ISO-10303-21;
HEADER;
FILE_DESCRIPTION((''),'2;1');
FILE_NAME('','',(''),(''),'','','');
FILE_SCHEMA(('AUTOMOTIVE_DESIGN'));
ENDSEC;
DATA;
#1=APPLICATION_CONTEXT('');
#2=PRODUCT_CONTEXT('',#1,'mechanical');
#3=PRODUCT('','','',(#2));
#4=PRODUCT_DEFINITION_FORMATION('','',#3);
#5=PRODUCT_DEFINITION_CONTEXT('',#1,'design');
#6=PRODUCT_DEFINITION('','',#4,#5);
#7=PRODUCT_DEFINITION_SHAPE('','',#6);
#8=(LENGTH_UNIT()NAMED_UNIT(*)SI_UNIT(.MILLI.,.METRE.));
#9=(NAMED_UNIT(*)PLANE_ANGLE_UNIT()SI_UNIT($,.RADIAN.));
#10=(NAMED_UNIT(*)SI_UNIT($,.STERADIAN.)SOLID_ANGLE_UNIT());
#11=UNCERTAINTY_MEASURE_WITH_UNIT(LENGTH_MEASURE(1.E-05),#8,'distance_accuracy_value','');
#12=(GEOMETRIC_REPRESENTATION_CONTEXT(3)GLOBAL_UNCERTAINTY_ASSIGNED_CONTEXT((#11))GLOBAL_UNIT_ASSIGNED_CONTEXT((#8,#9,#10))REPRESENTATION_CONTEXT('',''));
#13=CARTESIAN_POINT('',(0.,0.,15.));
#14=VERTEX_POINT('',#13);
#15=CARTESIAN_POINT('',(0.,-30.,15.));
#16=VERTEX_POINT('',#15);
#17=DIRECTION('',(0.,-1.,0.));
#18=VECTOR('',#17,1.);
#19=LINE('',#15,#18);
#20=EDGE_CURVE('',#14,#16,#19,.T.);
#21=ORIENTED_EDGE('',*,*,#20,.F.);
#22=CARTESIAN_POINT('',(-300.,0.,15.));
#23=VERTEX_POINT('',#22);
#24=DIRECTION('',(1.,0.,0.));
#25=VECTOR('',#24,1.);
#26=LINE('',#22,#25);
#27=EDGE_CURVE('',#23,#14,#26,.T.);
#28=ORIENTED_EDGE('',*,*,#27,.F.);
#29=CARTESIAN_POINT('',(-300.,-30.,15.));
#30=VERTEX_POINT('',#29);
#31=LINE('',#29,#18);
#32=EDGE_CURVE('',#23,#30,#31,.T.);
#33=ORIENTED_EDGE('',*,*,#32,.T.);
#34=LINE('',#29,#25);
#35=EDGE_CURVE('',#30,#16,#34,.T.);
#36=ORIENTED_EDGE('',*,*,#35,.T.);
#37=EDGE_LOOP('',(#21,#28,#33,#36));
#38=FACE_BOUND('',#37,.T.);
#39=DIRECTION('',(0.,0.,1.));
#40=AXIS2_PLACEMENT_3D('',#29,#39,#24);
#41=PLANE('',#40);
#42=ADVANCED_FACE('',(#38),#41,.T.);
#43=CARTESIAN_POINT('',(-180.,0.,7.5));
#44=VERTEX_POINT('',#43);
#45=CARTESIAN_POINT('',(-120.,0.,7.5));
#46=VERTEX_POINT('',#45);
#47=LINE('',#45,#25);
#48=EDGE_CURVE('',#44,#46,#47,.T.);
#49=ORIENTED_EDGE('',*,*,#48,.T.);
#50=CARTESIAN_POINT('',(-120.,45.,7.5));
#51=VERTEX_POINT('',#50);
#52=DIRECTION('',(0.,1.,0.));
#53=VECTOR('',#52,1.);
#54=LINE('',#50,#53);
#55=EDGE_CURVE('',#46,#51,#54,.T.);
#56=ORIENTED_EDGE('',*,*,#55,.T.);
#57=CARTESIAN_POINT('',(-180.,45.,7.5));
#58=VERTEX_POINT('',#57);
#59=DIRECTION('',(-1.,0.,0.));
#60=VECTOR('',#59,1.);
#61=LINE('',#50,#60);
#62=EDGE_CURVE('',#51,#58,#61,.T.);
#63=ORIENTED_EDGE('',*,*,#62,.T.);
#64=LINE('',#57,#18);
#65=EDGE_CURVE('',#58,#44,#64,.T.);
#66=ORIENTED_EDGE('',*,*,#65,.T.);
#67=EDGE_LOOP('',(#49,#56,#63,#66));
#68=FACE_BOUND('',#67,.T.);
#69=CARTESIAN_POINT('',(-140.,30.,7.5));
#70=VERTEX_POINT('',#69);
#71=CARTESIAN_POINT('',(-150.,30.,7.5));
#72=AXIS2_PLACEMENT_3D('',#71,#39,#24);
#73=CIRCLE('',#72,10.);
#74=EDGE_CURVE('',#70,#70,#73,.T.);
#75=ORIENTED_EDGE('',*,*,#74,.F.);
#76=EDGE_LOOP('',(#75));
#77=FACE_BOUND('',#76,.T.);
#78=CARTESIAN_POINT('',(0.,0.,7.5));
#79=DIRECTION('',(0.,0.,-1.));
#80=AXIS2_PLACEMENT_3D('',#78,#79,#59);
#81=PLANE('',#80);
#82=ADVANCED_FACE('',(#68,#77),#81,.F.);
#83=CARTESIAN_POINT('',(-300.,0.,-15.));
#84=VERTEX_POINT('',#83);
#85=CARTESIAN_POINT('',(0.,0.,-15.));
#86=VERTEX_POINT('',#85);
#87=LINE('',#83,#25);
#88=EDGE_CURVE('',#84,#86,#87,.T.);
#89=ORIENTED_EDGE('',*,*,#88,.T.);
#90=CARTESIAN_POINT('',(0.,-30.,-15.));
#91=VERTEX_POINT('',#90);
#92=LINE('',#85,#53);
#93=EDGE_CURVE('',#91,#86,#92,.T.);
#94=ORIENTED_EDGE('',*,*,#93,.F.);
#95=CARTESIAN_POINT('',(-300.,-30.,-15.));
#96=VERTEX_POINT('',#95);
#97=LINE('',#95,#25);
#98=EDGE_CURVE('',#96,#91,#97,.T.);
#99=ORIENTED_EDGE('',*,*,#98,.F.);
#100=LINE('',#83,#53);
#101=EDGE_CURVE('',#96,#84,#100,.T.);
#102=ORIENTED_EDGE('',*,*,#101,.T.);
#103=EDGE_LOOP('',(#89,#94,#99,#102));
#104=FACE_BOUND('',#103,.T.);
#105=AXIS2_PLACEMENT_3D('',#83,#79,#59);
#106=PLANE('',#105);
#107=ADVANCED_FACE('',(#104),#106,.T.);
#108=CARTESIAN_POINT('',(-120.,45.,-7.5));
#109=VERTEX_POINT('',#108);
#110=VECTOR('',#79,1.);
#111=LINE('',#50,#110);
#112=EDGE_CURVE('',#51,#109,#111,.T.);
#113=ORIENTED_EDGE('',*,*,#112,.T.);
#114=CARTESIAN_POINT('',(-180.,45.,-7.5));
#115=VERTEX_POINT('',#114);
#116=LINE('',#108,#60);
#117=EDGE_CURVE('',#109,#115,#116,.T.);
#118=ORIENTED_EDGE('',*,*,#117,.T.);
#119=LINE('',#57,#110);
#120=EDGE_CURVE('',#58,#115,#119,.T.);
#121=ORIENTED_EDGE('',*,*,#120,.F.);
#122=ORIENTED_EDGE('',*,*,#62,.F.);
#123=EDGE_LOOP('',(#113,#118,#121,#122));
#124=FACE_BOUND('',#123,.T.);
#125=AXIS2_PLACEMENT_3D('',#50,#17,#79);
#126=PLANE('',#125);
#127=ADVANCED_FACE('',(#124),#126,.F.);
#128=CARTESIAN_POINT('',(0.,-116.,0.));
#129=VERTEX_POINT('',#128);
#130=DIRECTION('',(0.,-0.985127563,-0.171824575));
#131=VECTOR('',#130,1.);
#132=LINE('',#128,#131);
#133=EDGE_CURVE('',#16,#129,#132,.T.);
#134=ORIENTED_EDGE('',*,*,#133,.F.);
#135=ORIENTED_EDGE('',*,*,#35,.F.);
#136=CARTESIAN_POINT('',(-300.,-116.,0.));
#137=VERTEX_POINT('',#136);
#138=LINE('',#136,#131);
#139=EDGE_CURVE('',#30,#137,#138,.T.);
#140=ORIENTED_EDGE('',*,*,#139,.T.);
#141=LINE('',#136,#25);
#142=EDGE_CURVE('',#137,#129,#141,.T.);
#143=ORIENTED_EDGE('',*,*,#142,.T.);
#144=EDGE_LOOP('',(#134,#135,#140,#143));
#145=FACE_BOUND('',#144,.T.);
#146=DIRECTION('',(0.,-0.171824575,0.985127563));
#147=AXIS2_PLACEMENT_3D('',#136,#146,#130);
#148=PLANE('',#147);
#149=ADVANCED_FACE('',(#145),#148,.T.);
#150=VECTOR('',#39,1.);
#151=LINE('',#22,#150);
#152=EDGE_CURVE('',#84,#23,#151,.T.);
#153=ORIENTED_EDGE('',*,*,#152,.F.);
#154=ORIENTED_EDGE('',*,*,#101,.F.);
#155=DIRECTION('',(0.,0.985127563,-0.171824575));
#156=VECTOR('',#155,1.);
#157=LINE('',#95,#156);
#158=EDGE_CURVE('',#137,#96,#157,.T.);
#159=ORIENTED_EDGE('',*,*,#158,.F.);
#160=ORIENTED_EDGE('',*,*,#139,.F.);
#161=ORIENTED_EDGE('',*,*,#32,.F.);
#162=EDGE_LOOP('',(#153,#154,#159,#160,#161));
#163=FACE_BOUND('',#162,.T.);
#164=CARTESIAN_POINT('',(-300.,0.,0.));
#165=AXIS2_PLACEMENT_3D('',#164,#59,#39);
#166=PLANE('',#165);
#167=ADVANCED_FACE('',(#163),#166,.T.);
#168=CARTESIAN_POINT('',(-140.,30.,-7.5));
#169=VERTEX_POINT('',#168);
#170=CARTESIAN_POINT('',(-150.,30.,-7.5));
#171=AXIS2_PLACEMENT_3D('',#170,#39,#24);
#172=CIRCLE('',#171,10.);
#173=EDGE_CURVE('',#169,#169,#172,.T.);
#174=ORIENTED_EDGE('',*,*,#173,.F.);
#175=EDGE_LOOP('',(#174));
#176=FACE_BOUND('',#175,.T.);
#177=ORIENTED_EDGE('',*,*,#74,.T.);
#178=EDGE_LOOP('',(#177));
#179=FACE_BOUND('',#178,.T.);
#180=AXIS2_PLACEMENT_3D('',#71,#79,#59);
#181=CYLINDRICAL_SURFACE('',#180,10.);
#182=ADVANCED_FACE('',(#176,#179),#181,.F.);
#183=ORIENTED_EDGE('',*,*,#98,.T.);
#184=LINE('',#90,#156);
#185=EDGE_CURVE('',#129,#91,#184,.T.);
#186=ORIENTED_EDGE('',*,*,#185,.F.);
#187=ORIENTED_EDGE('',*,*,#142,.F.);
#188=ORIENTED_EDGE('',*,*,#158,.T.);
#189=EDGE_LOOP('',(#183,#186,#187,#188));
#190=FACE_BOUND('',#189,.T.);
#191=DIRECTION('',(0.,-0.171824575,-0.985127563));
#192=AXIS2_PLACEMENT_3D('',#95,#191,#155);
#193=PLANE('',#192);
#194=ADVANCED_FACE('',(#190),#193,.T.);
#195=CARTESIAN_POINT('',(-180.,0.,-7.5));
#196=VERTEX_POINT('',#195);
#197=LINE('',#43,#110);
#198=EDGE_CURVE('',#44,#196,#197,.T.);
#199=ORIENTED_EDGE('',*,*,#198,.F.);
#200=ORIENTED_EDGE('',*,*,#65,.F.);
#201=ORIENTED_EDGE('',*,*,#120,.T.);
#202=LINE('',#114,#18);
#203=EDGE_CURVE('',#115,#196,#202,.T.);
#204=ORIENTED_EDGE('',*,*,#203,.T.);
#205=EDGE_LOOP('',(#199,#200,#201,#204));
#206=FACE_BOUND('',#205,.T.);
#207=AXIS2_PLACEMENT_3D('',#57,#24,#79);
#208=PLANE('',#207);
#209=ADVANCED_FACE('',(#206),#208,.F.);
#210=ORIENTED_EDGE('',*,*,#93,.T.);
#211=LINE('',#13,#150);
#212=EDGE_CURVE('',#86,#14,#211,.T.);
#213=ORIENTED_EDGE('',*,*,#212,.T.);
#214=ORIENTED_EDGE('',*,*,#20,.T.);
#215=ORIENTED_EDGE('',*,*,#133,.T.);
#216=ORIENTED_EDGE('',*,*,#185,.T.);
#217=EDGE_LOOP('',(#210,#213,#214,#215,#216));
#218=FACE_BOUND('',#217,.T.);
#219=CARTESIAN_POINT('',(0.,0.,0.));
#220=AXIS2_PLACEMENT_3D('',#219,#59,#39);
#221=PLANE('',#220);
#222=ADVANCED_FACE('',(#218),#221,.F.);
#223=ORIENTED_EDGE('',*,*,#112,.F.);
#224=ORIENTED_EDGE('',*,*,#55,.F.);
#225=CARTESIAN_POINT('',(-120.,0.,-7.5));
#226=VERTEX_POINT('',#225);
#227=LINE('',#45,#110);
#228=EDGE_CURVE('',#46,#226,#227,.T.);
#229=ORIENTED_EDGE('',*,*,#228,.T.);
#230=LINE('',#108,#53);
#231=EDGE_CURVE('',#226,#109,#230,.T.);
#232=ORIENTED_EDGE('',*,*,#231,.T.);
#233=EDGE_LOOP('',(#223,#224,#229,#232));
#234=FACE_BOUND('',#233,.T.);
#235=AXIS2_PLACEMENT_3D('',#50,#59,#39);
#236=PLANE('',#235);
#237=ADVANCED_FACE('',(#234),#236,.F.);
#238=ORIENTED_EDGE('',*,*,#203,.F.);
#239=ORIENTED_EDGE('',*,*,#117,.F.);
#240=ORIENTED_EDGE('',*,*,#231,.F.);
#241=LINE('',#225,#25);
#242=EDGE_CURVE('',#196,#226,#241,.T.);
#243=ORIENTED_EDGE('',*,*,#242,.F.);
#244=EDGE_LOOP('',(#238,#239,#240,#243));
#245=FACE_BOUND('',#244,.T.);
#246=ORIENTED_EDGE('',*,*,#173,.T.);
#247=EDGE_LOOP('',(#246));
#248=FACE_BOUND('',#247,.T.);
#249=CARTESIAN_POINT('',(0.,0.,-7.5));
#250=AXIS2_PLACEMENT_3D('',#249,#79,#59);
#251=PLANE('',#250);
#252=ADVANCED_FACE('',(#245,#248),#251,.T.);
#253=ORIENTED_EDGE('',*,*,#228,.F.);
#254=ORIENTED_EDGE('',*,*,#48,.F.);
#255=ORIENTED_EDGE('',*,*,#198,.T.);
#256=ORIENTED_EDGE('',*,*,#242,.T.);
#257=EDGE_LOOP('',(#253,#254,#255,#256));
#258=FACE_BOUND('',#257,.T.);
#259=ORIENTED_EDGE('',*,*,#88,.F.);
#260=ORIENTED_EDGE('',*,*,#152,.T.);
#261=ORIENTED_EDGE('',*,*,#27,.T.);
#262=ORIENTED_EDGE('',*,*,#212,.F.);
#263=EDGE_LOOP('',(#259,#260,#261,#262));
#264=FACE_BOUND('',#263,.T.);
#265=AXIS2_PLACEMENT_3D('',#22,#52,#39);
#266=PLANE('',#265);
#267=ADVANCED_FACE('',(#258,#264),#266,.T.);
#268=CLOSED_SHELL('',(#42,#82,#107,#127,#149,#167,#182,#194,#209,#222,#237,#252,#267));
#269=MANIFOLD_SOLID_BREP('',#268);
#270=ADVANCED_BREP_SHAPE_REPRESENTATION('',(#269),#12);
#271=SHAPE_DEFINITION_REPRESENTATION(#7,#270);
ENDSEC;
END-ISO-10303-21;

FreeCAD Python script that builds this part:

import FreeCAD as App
import Part
import Sketcher

doc = App.newDocument("Part")
params = doc.addObject("Spreadsheet::Sheet", "Params")
for row, (alias, value) in enumerate([
    ("sketch1_width", "30 mm"),
    ("pad1_length", "300 mm"),
    ("sketch2_diameter", "20 mm"),
    ("sketch2_width", "60 mm"),
    ("sketch2_height", "45 mm"),
    ("pad2_length", "15 mm"),
], start=1):
    params.set(f"A{row}", alias)
    params.set(f"B{row}", "=" + value)
    params.setAlias(f"B{row}", alias)

body = doc.addObject("PartDesign::Body", "Body")

# Sketch on YZ plane
sketch1 = body.newObject("Sketcher::SketchObject", "Sketch")
sketch1.AttachmentSupport = (doc.getObject("YZ_Plane"), [""])
sketch1.MapMode = "FlatFace"
sketch1.addGeometry([
    Part.LineSegment(App.Vector(0, -15, 0), App.Vector(0, 15, 0)),  # 0
    Part.LineSegment(App.Vector(0, 15, 0), App.Vector(-30, 15, 0)),  # 1
    Part.LineSegment(App.Vector(-30, 15, 0), App.Vector(-116, 0, 0)),  # 2
    Part.LineSegment(App.Vector(-116, 0, 0), App.Vector(-30, -15, 0)),  # 3
    Part.LineSegment(App.Vector(-30, -15, 0), App.Vector(0, -15, 0)),  # 4
], False)
sketch1.addConstraint([
    Sketcher.Constraint("Coincident", 0, 2, 1, 1),
    Sketcher.Constraint("Coincident", 1, 2, 2, 1),
    Sketcher.Constraint("Coincident", 2, 2, 3, 1),
    Sketcher.Constraint("Coincident", 3, 2, 4, 1),
    Sketcher.Constraint("Coincident", 4, 2, 0, 1),
    Sketcher.Constraint("Vertical", 0),
    Sketcher.Constraint("Horizontal", 1),
    Sketcher.Constraint("Horizontal", 4),
    Sketcher.Constraint("Symmetric", 0, 2, 4, 2, -1, 1),
    Sketcher.Constraint("PointOnObject", 2, 2, -1),
    Sketcher.Constraint("Vertical", 1, 2, 3, 2),
    Sketcher.Constraint("Equal", 4, 0),
    Sketcher.Constraint("DistanceX", 1, 2, 1, 1, 30.0),
    Sketcher.Constraint("DistanceX", 2, 2, -1, 1, 116.0),
])
sketch1.setExpression("Constraints[12]", "Params.sketch1_width")
pad1 = body.newObject("PartDesign::Pad", "Pad")
pad1.Profile = sketch1
pad1.setExpression("Length", "Params.pad1_length")
pad1.Reversed = True

# Sketch on XY plane
sketch2 = body.newObject("Sketcher::SketchObject", "Sketch001")
sketch2.AttachmentSupport = (doc.getObject("XY_Plane"), [""])
sketch2.MapMode = "FlatFace"
sketch2.addGeometry([
    Part.LineSegment(App.Vector(-180, 45, 0), App.Vector(-180, 0, 0)),  # 0
    Part.LineSegment(App.Vector(-180, 0, 0), App.Vector(-120, 0, 0)),  # 1
    Part.LineSegment(App.Vector(-120, 0, 0), App.Vector(-120, 45, 0)),  # 2
    Part.LineSegment(App.Vector(-120, 45, 0), App.Vector(-180, 45, 0)),  # 3
    Part.Circle(App.Vector(-150, 30, 0), App.Vector(0, 0, 1), 10),  # 4
], False)
sketch2.addConstraint([
    Sketcher.Constraint("Coincident", 0, 2, 1, 1),
    Sketcher.Constraint("Coincident", 1, 2, 2, 1),
    Sketcher.Constraint("Coincident", 2, 2, 3, 1),
    Sketcher.Constraint("Coincident", 3, 2, 0, 1),
    Sketcher.Constraint("Vertical", 0),
    Sketcher.Constraint("Horizontal", 1),
    Sketcher.Constraint("Vertical", 2),
    Sketcher.Constraint("Horizontal", 3),
    Sketcher.Constraint("PointOnObject", 0, 2, -1),
    Sketcher.Constraint("Diameter", 4, 20.0),
    Sketcher.Constraint("DistanceX", 1, 1, 1, 2, 60.0),
    Sketcher.Constraint("DistanceY", 0, 2, 0, 1, 45.0),
    Sketcher.Constraint("DistanceX", 4, 3, -1, 1, 150.0),
    Sketcher.Constraint("DistanceY", -1, 1, 4, 3, 30.0),
    Sketcher.Constraint("DistanceX", 0, 2, -1, 1, 180.0),
])
sketch2.setExpression("Constraints[9]", "Params.sketch2_diameter")
sketch2.setExpression("Constraints[10]", "Params.sketch2_width")
sketch2.setExpression("Constraints[11]", "Params.sketch2_height")
pad2 = body.newObject("PartDesign::Pad", "Pad001")
pad2.Profile = sketch2
pad2.setExpression("Length", "Params.pad2_length")
pad2.Midplane = True

doc.recompute()
